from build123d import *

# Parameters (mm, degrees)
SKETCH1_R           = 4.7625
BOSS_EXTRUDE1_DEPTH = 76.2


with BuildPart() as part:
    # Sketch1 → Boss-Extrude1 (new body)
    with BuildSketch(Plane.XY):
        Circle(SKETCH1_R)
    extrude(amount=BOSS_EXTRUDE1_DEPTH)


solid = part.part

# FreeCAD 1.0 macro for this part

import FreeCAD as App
import Part
import Sketcher
from FreeCAD import Vector
Q = App.Units.Quantity

doc = App.newDocument("Part")
body = doc.addObject("PartDesign::Body", "Body")

sketch1 = body.newObject("Sketcher::SketchObject", "Sketch")
sketch1.AttachmentSupport = (doc.getObject("XY_Plane"), [""])
sketch1.MapMode = "FlatFace"
sketch1.addGeometry(Part.Circle(Vector(0, 0, 0), Vector(0, 0, 1), 4.8), False)
sketch1.addConstraint([
    Sketcher.Constraint("Coincident", 0, 3, -1, 1),
    Sketcher.Constraint("Diameter", 0, Q("0.375 in")),
])
pad1 = body.newObject("PartDesign::Pad", "Pad")
pad1.Profile = sketch1
pad1.Length = Q("3 in")

doc.recompute()
